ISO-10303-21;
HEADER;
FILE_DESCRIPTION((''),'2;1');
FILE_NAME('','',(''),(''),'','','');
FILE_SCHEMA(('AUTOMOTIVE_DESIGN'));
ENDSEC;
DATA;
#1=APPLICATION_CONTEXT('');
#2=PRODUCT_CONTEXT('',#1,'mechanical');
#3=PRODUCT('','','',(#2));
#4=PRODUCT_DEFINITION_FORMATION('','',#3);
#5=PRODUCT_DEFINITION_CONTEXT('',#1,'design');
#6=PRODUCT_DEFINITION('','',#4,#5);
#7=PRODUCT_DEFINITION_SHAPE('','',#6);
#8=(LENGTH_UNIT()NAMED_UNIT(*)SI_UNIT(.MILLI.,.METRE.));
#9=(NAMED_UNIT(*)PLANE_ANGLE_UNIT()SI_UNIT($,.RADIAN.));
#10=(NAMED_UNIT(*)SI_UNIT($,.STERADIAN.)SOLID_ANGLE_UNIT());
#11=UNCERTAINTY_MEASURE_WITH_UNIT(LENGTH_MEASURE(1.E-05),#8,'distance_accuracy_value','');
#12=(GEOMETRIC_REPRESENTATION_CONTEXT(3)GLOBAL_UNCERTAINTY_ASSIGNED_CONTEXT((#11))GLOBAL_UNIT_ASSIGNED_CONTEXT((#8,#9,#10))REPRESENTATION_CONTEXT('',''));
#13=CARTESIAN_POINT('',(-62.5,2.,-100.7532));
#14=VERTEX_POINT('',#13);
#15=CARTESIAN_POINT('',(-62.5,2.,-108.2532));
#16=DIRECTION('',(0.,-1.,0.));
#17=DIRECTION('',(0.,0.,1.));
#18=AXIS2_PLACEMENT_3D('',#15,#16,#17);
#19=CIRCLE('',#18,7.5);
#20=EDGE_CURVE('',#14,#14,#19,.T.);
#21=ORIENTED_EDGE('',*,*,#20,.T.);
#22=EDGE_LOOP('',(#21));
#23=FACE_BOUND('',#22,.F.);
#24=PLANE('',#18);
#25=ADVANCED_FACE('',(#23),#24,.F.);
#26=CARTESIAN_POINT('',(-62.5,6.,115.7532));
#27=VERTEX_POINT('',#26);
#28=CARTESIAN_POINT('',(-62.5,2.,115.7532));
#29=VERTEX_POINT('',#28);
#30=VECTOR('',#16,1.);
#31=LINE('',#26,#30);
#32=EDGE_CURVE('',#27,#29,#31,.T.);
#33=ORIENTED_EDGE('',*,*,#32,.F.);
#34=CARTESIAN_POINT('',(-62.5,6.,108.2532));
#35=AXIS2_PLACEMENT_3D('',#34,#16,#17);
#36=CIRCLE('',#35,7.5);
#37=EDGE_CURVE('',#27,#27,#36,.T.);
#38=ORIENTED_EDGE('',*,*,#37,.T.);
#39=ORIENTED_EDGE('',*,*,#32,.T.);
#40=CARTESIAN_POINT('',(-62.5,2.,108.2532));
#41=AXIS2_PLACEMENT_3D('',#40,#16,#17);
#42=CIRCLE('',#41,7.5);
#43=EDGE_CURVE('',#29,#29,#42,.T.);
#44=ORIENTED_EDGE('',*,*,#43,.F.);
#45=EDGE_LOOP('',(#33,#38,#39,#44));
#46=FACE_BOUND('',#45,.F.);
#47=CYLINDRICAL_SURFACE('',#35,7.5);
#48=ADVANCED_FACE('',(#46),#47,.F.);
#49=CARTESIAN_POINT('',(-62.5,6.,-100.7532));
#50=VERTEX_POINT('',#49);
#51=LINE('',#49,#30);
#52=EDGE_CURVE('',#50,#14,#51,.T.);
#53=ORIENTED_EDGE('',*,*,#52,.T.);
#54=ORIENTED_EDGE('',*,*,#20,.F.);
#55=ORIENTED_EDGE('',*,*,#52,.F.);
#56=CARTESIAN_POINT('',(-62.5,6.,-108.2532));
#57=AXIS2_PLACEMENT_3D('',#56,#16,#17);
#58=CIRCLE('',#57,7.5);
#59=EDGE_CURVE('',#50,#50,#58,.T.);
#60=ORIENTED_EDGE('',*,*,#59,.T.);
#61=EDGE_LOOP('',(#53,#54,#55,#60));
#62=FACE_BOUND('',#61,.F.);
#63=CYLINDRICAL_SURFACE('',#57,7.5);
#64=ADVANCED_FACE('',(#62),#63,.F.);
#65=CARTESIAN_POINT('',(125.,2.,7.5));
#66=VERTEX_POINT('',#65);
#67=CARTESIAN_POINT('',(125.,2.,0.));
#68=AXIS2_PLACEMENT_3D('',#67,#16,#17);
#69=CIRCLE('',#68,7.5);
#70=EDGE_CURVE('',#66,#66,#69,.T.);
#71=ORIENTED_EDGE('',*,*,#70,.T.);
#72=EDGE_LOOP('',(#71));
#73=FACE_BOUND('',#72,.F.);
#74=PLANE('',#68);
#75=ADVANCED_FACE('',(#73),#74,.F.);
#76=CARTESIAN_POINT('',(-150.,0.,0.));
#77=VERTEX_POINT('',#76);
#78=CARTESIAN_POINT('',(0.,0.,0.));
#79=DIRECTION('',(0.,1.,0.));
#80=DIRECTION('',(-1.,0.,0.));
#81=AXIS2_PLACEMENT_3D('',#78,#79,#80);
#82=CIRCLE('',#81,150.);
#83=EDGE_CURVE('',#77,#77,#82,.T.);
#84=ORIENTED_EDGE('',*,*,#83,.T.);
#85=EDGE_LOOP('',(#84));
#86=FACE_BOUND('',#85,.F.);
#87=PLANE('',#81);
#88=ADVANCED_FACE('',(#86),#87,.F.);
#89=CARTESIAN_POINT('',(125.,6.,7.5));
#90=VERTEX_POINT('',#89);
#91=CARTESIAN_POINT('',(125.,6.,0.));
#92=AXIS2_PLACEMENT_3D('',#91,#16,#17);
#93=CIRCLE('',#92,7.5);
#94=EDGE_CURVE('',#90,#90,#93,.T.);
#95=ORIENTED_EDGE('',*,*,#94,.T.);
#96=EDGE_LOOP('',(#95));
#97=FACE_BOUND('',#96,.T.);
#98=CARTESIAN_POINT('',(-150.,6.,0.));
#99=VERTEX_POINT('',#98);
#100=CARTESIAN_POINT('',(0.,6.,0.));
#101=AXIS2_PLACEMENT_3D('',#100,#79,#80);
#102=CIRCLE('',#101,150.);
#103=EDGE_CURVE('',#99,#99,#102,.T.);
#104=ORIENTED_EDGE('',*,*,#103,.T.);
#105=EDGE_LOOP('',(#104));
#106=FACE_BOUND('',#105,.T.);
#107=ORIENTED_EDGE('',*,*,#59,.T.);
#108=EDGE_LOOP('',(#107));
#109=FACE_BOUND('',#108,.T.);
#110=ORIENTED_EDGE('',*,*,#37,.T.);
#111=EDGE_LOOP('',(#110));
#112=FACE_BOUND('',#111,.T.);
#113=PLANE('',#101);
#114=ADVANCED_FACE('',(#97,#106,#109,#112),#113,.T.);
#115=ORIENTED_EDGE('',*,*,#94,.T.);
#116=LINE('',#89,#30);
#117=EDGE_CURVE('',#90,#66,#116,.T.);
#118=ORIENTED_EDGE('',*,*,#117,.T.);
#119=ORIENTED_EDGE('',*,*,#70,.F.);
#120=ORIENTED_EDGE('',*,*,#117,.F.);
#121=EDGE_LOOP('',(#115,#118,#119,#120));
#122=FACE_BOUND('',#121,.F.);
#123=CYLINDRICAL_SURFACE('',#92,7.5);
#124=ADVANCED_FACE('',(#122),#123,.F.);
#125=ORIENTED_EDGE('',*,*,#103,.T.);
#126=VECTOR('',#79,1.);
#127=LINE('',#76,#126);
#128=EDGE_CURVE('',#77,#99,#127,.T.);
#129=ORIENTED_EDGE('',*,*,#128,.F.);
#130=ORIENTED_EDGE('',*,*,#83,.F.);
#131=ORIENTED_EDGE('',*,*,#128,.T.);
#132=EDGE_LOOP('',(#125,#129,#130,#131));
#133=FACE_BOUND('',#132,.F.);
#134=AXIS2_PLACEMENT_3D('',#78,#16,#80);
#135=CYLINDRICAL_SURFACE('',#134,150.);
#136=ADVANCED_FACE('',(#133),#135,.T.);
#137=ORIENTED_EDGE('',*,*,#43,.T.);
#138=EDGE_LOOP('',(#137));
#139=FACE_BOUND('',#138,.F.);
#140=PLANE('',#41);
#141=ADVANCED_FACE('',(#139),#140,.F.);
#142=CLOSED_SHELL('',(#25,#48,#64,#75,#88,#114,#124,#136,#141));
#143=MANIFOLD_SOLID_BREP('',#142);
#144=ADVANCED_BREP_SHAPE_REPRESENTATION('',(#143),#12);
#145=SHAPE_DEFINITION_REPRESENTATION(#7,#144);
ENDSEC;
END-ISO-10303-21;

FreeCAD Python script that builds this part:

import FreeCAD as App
import Part
import Sketcher
from FreeCAD import Vector

doc = App.newDocument("Part")
body = doc.addObject("PartDesign::Body", "Body")

sketch1 = body.newObject("Sketcher::SketchObject", "Sketch")
sketch1.AttachmentSupport = (doc.getObject("XZ_Plane"), [""])
sketch1.MapMode = "FlatFace"
sketch1.addGeometry(Part.Circle(Vector(0, 0, 0), Vector(0, 0, 1), 150), False)
sketch1.addConstraint([
    Sketcher.Constraint("Coincident", 0, 3, -1, 1),
    Sketcher.Constraint("Diameter", 0, 300.0),
])
pad1 = body.newObject("PartDesign::Pad", "Pad")
pad1.Profile = sketch1
pad1.Length = 6
pad1.Reversed = True

sketch2 = body.newObject("Sketcher::SketchObject", "Sketch001")
sketch2.AttachmentSupport = (doc.getObject("XZ_Plane"), [""])
sketch2.MapMode = "FlatFace"
sketch2.AttachmentOffset = App.Placement(Vector(0, 0, -6), App.Rotation())
sketch2.addGeometry(Part.Circle(Vector(125, 0, 0), Vector(0, 0, 1), 8), False)
sketch2.addConstraint([
    Sketcher.Constraint("PointOnObject", 0, 3, -1),
    Sketcher.Constraint("Diameter", 0, 15.0),
    Sketcher.Constraint("DistanceX", -1, 1, 0, 3, 125.0),
])
doc.recompute()
hole = body.newObject("PartDesign::Hole", "Hole")
hole.Profile = sketch2
hole.ThreadType = "None"
hole.Diameter = 15
hole.DepthType = "Dimension"
hole.Depth = 4
hole.DrillPoint = "Flat"
hole.Reversed = True

sketch3 = body.newObject("Sketcher::SketchObject", "Sketch002")
sketch3.AttachmentSupport = (doc.getObject("XZ_Plane"), [""])
sketch3.MapMode = "FlatFace"
sketch3.AttachmentOffset = App.Placement(Vector(0, 0, -6), App.Rotation())
sketch3.addGeometry(Part.Circle(Vector(-62, 108, 0), Vector(0, 0, 1), 8), False)
sketch3.addConstraint([
    Sketcher.Constraint("Diameter", 0, 15.0),
    Sketcher.Constraint("DistanceX", 0, 3, -1, 1, 62.5),
    Sketcher.Constraint("DistanceY", -1, 1, 0, 3, 108.2532),
])
doc.recompute()
hole2 = body.newObject("PartDesign::Hole", "Hole001")
hole2.Profile = sketch3
hole2.ThreadType = "None"
hole2.Diameter = 15
hole2.DepthType = "Dimension"
hole2.Depth = 4
hole2.DrillPoint = "Flat"
hole2.Reversed = True

sketch4 = body.newObject("Sketcher::SketchObject", "Sketch003")
sketch4.AttachmentSupport = (doc.getObject("XZ_Plane"), [""])
sketch4.MapMode = "FlatFace"
sketch4.AttachmentOffset = App.Placement(Vector(0, 0, -6), App.Rotation())
sketch4.addGeometry(Part.Circle(Vector(-62, -108, 0), Vector(0, 0, 1), 8), False)
sketch4.addConstraint([
    Sketcher.Constraint("Diameter", 0, 15.0),
    Sketcher.Constraint("DistanceX", 0, 3, -1, 1, 62.5),
    Sketcher.Constraint("DistanceY", 0, 3, -1, 1, 108.2532),
])
doc.recompute()
hole3 = body.newObject("PartDesign::Hole", "Hole002")
hole3.Profile = sketch4
hole3.ThreadType = "None"
hole3.Diameter = 15
hole3.DepthType = "Dimension"
hole3.Depth = 4
hole3.DrillPoint = "Flat"
hole3.Reversed = True

doc.recompute()
